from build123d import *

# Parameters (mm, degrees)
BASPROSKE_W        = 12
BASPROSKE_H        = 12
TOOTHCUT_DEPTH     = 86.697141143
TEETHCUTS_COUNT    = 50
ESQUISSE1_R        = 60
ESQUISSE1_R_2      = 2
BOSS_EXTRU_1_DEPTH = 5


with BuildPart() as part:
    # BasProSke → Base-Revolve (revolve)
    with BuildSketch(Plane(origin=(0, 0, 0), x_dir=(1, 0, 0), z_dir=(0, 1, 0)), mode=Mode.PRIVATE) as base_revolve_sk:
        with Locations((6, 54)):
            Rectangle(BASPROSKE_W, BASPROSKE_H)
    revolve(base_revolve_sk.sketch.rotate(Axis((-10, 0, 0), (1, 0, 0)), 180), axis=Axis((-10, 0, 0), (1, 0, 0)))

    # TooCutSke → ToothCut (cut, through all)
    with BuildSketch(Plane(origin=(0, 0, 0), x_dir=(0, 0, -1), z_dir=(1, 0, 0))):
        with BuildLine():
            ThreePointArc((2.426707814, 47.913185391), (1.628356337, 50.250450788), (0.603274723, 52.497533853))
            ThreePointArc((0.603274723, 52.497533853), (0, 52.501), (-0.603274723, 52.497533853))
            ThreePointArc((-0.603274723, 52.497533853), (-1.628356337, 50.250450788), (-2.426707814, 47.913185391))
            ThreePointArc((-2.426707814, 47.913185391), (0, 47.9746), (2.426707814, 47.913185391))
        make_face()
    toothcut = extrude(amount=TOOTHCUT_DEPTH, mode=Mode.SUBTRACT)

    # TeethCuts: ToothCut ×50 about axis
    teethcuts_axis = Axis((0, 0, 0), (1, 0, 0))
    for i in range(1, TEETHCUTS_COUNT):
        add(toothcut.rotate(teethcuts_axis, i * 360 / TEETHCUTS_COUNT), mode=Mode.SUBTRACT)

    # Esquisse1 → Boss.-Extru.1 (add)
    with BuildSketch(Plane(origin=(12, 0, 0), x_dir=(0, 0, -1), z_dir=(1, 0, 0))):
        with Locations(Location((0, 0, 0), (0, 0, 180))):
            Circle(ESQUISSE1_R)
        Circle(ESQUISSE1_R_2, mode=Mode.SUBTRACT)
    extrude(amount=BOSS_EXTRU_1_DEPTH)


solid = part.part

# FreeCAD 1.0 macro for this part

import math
import FreeCAD as App
import Part
import Sketcher


def add_polygon(sketch, points):
    """Adds a closed chain of lines whose ends are joined by coincident constraints."""
    first, n = sketch.GeometryCount, len(points)
    for a, b in zip(points, points[1:] + points[:1]):
        sketch.addGeometry(Part.LineSegment(App.Vector(*a, 0), App.Vector(*b, 0)), False)
    for i in range(n):
        sketch.addConstraint(Sketcher.Constraint("Coincident", first + i, 2, first + (i + 1) % n, 1))

doc = App.newDocument("Part")
body = doc.addObject("PartDesign::Body", "Body")

# Sketch on XZ plane
sketch1 = doc.addObject("Sketcher::SketchObject", "Sketch")
body.addObject(sketch1)
sketch1.AttachmentSupport = (doc.XZ_Plane, [""])
sketch1.MapMode = "FlatFace"
add_polygon(sketch1, [(0, -60), (0, -48), (12, -48), (12, -60)])  # lines 0-3
sketch1.addConstraint([
    Sketcher.Constraint("Vertical", 0),
    Sketcher.Constraint("Horizontal", 1),
    Sketcher.Constraint("Vertical", 2),
    Sketcher.Constraint("Horizontal", 3),
    Sketcher.Constraint("PointOnObject", 0, 2, -2),
    Sketcher.Constraint("Equal", 3, 0),
    Sketcher.Constraint("DistanceX", 1, 1, 1, 2, 12.0),
    Sketcher.Constraint("DistanceY", 0, 2, -1, 1, 48.0),
])
revolution = doc.addObject("PartDesign::Revolution", "Revolution")
body.addObject(revolution)
revolution.Profile = sketch1
revolution.ReferenceAxis = (sketch1, ["H_Axis"])
revolution.Angle = 360

# Sketch on YZ plane
sketch2 = doc.addObject("Sketcher::SketchObject", "Sketch001")
body.addObject(sketch2)
sketch2.AttachmentSupport = (doc.YZ_Plane, [""])
sketch2.MapMode = "FlatFace"
sketch2.addGeometry([
    Part.ArcOfCircle(Part.Circle(App.Vector(41, 21.6, 0), App.Vector(0, 0, 1), 25), math.radians(-73.97), math.radians(-62.65)),
    Part.ArcOfCircle(Part.Circle(App.Vector(0, 0, 0), App.Vector(0, 0, 1), 52.5), math.radians(-0.66), math.radians(0.66)),
    Part.ArcOfCircle(Part.Circle(App.Vector(41, -21.6, 0), App.Vector(0, 0, 1), 25), math.radians(62.65), math.radians(73.97)),
    Part.ArcOfCircle(Part.Circle(App.Vector(0, 0, 0), App.Vector(0, 0, 1), 48), math.radians(-2.9), math.radians(2.9)),
], False)
sketch2.addConstraint([
    Sketcher.Constraint("Coincident", 0, 2, 1, 1),
    Sketcher.Constraint("Coincident", 1, 2, 2, 1),
    Sketcher.Constraint("Coincident", 2, 2, 3, 2),
    Sketcher.Constraint("Coincident", 3, 1, 0, 1),
    Sketcher.Constraint("Coincident", 1, 3, -1, 1),
    Sketcher.Constraint("Coincident", 3, 3, -1, 1),
    Sketcher.Constraint("Equal", 0, 2),
    Sketcher.Constraint("Symmetric", 0, 3, 2, 3, -1),
    Sketcher.Constraint("Radius", 0, 25.0),
    Sketcher.Constraint("Radius", 3, 47.9746),
    Sketcher.Constraint("Radius", 1, 52.501006),
    Sketcher.Constraint("DistanceY", 0, 2, 0, 3, 22.2048),
    Sketcher.Constraint("DistanceY", 2, 3, 0, 3, 43.203051),
])
pocket1 = doc.addObject("PartDesign::Pocket", "Pocket")
body.addObject(pocket1)
pocket1.Profile = sketch2
pocket1.Type = "ThroughAll"
pocket1.Reversed = True
doc.recompute()

polarpattern = doc.addObject("PartDesign::PolarPattern", "PolarPattern")
body.addObject(polarpattern)
polarpattern.Originals = [pocket1]
polarpattern.Axis = (doc.X_Axis, [""])
polarpattern.Angle = 360
polarpattern.Occurrences = 50
body.Tip = polarpattern

# Sketch on YZ plane
sketch3 = doc.addObject("Sketcher::SketchObject", "Sketch002")
body.addObject(sketch3)
sketch3.AttachmentSupport = (doc.YZ_Plane, [""])
sketch3.MapMode = "FlatFace"
sketch3.AttachmentOffset = App.Placement(App.Vector(0, 0, 12), App.Rotation())
sketch3.addGeometry([
    Part.Circle(App.Vector(0, 0, 0), App.Vector(0, 0, 1), 60),
    Part.Circle(App.Vector(0, 0, 0), App.Vector(0, 0, 1), 2),
], False)
sketch3.addConstraint([
    Sketcher.Constraint("Coincident", 0, 3, -1, 1),
    Sketcher.Constraint("Coincident", 1, 3, -1, 1),
    Sketcher.Constraint("Diameter", 0, 120.0),
    Sketcher.Constraint("Diameter", 1, 4.0),
])
pad1 = doc.addObject("PartDesign::Pad", "Pad")
body.addObject(pad1)
pad1.Profile = sketch3
pad1.Length = 5

doc.recompute()
